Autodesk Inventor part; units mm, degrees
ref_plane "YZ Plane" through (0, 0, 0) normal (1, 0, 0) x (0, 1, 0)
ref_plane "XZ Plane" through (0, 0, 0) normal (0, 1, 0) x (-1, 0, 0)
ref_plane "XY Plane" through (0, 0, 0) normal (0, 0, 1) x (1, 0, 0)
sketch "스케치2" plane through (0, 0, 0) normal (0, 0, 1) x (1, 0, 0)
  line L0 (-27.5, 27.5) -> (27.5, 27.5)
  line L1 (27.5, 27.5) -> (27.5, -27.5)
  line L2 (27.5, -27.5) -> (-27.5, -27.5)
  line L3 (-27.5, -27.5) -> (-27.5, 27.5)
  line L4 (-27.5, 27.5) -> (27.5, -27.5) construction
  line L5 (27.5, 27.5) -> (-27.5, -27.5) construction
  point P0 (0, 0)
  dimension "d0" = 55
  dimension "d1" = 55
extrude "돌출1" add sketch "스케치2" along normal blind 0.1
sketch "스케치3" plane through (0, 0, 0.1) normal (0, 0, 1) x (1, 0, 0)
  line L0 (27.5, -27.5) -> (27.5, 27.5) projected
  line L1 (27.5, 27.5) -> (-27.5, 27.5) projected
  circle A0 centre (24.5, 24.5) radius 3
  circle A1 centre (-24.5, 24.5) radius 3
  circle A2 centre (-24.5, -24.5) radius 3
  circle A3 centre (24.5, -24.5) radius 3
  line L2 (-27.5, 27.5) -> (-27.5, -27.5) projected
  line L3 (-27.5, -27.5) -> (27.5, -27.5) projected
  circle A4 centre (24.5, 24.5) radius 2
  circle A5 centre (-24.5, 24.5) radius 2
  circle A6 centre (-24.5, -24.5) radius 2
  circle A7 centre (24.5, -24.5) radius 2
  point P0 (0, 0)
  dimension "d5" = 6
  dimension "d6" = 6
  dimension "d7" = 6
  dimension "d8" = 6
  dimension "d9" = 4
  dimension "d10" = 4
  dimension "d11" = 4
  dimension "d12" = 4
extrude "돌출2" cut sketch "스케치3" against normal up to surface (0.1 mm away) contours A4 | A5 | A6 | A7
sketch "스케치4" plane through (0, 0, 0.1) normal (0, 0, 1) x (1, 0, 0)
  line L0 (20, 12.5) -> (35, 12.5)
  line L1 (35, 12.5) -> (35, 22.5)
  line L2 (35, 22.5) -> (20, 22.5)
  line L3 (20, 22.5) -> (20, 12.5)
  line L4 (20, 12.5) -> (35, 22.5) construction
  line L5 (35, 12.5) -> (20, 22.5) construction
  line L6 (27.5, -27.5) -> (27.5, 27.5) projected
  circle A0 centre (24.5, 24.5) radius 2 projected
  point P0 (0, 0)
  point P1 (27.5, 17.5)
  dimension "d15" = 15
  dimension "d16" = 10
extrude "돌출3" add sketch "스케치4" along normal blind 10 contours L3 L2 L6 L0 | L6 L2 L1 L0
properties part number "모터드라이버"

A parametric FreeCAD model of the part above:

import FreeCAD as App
import Part
import Sketcher

V = App.Vector
Q = App.Units.Quantity

doc = App.newDocument("Part")
body = doc.addObject("PartDesign::Body", "Body")

# Sketch on XY plane
sketch1 = body.newObject("Sketcher::SketchObject", "Sketch")
sketch1.AttachmentSupport = (doc.getObject("XY_Plane"), [""])
sketch1.MapMode = "FlatFace"
sketch1.addGeometry([
    Part.LineSegment(V(28, 28, 0), V(-28, 28, 0)),
    Part.LineSegment(V(-28, 28, 0), V(-28, -28, 0)),
    Part.LineSegment(V(-28, -28, 0), V(28, -28, 0)),
    Part.LineSegment(V(28, -28, 0), V(28, 28, 0)),
], False)
sketch1.addConstraint([
    Sketcher.Constraint("Coincident", 0, 2, 1, 1),
    Sketcher.Constraint("Coincident", 1, 2, 2, 1),
    Sketcher.Constraint("Coincident", 2, 2, 3, 1),
    Sketcher.Constraint("Coincident", 3, 2, 0, 1),
    Sketcher.Constraint("Horizontal", 0),
    Sketcher.Constraint("Vertical", 1),
    Sketcher.Constraint("Horizontal", 2),
    Sketcher.Constraint("Vertical", 3),
    Sketcher.Constraint("Symmetric", 0, 2, 2, 2, -1, 1),
    Sketcher.Constraint("Equal", 2, 1),
    Sketcher.Constraint("DistanceX", 0, 2, 0, 1, Q("55 mm")),
])
pad1 = body.newObject("PartDesign::Pad", "Pad")
pad1.Profile = sketch1
pad1.Length = 0.1

# Sketch on XY plane
sketch2 = body.newObject("Sketcher::SketchObject", "Sketch001")
sketch2.AttachmentSupport = (doc.getObject("XY_Plane"), [""])
sketch2.MapMode = "FlatFace"
sketch2.AttachmentOffset = App.Placement(V(0, 0, 0.1), App.Rotation())
sketch2.addGeometry([
    Part.Circle(V(24.5, 24.5, 0), V(0, 0, 1), 2),
    Part.Circle(V(-24.5, 24.5, 0), V(0, 0, 1), 2),
    Part.Circle(V(-24.5, -24.5, 0), V(0, 0, 1), 2),
    Part.Circle(V(24.5, -24.5, 0), V(0, 0, 1), 2),
], False)
sketch2.addConstraint([
    Sketcher.Constraint("Equal", 0, 1),
    Sketcher.Constraint("Equal", 1, 2),
    Sketcher.Constraint("Equal", 2, 3),
    Sketcher.Constraint("Symmetric", 0, 3, 2, 3, -1, 1),
    Sketcher.Constraint("Symmetric", 1, 3, 3, 3, -1, 1),
    Sketcher.Constraint("Symmetric", 0, 3, 1, 3, -2),
    Sketcher.Constraint("Diameter", 0, Q("4 mm")),
    Sketcher.Constraint("DistanceX", 1, 3, 0, 3, Q("49 mm")),
    Sketcher.Constraint("DistanceY", 2, 3, 1, 3, Q("49 mm")),
])
pocket1 = body.newObject("PartDesign::Pocket", "Pocket")
pocket1.Profile = sketch2
pocket1.Length = 0.1

# Sketch on XY plane
sketch3 = body.newObject("Sketcher::SketchObject", "Sketch002")
sketch3.AttachmentSupport = (doc.getObject("XY_Plane"), [""])
sketch3.MapMode = "FlatFace"
sketch3.AttachmentOffset = App.Placement(V(0, 0, 0.1), App.Rotation())
sketch3.addGeometry([
    Part.LineSegment(V(20, 22, 0), V(20, 12, 0)),
    Part.LineSegment(V(20, 12, 0), V(35, 12, 0)),
    Part.LineSegment(V(35, 12, 0), V(35, 22, 0)),
    Part.LineSegment(V(35, 22, 0), V(20, 22, 0)),
], False)
sketch3.addConstraint([
    Sketcher.Constraint("Coincident", 0, 2, 1, 1),
    Sketcher.Constraint("Coincident", 1, 2, 2, 1),
    Sketcher.Constraint("Coincident", 2, 2, 3, 1),
    Sketcher.Constraint("Coincident", 3, 2, 0, 1),
    Sketcher.Constraint("Vertical", 0),
    Sketcher.Constraint("Horizontal", 1),
    Sketcher.Constraint("Vertical", 2),
    Sketcher.Constraint("Horizontal", 3),
    Sketcher.Constraint("DistanceX", 1, 1, 1, 2, Q("15 mm")),
    Sketcher.Constraint("DistanceY", 0, 2, 0, 1, Q("10 mm")),
    Sketcher.Constraint("DistanceX", -1, 1, 0, 2, Q("20 mm")),
    Sketcher.Constraint("DistanceY", -1, 1, 0, 2, Q("12.5 mm")),
])
pad2 = body.newObject("PartDesign::Pad", "Pad001")
pad2.Profile = sketch3
pad2.Length = 10

doc.recompute()
